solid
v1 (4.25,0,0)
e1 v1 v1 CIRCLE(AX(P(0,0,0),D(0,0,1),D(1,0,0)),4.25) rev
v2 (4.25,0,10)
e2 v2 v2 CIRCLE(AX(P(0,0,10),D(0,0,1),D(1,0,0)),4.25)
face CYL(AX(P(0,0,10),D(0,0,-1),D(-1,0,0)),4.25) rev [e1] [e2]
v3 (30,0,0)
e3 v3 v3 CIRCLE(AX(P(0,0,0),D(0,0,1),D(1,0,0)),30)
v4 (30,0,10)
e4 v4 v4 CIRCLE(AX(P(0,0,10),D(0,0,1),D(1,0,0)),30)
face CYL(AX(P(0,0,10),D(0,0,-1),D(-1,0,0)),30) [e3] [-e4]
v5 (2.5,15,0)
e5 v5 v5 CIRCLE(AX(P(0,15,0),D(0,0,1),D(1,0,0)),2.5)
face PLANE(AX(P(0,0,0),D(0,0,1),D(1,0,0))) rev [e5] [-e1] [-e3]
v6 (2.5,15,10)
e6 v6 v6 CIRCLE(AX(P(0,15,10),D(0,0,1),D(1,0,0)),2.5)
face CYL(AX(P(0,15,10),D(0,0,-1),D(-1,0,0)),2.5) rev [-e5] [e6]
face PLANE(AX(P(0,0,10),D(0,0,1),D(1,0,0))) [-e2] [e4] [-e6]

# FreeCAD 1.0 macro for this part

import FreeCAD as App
import Part
import Sketcher
Q = App.Units.Quantity

doc = App.newDocument("Part")
body = doc.addObject("PartDesign::Body", "Body")

sketch1 = doc.addObject("Sketcher::SketchObject", "Sketch")
body.addObject(sketch1)
sketch1.AttachmentSupport = (doc.XY_Plane, [""])
sketch1.MapMode = "FlatFace"
sketch1.addGeometry(Part.Circle(App.Vector(0, 0, 0), App.Vector(0, 0, 1), 30), False)
sketch1.addConstraint(Sketcher.Constraint("Coincident", 0, 3, -1, 1))
sketch1.addConstraint(Sketcher.Constraint("Diameter", 0, Q("60 mm")))
pad1 = doc.addObject("PartDesign::Pad", "Pad")
body.addObject(pad1)
pad1.Profile = sketch1
pad1.Length = 10

sketch2 = doc.addObject("Sketcher::SketchObject", "Sketch001")
body.addObject(sketch2)
sketch2.AttachmentSupport = (doc.XY_Plane, [""])
sketch2.MapMode = "FlatFace"
sketch2.addGeometry(Part.Circle(App.Vector(0, 15, 0), App.Vector(0, 0, 1), 2.5), False)
sketch2.addConstraint(Sketcher.Constraint("PointOnObject", 0, 3, -2))
sketch2.addConstraint(Sketcher.Constraint("Diameter", 0, Q("5 mm")))
sketch2.addConstraint(Sketcher.Constraint("DistanceY", -1, 1, 0, 3, Q("15 mm")))
pocket1 = doc.addObject("PartDesign::Pocket", "Pocket")
body.addObject(pocket1)
pocket1.Profile = sketch2
pocket1.Length = 10
pocket1.Reversed = True

sketch3 = doc.addObject("Sketcher::SketchObject", "Sketch002")
body.addObject(sketch3)
sketch3.AttachmentSupport = (doc.XY_Plane, [""])
sketch3.MapMode = "FlatFace"
sketch3.addGeometry(Part.Circle(App.Vector(0, 0, 0), App.Vector(0, 0, 1), 4.2), False)
sketch3.addConstraint(Sketcher.Constraint("Coincident", 0, 3, -1, 1))
sketch3.addConstraint(Sketcher.Constraint("Diameter", 0, Q("8.5 mm")))
pocket2 = doc.addObject("PartDesign::Pocket", "Pocket001")
body.addObject(pocket2)
pocket2.Profile = sketch3
pocket2.Type = "ThroughAll"
pocket2.Midplane = True

doc.recompute()
